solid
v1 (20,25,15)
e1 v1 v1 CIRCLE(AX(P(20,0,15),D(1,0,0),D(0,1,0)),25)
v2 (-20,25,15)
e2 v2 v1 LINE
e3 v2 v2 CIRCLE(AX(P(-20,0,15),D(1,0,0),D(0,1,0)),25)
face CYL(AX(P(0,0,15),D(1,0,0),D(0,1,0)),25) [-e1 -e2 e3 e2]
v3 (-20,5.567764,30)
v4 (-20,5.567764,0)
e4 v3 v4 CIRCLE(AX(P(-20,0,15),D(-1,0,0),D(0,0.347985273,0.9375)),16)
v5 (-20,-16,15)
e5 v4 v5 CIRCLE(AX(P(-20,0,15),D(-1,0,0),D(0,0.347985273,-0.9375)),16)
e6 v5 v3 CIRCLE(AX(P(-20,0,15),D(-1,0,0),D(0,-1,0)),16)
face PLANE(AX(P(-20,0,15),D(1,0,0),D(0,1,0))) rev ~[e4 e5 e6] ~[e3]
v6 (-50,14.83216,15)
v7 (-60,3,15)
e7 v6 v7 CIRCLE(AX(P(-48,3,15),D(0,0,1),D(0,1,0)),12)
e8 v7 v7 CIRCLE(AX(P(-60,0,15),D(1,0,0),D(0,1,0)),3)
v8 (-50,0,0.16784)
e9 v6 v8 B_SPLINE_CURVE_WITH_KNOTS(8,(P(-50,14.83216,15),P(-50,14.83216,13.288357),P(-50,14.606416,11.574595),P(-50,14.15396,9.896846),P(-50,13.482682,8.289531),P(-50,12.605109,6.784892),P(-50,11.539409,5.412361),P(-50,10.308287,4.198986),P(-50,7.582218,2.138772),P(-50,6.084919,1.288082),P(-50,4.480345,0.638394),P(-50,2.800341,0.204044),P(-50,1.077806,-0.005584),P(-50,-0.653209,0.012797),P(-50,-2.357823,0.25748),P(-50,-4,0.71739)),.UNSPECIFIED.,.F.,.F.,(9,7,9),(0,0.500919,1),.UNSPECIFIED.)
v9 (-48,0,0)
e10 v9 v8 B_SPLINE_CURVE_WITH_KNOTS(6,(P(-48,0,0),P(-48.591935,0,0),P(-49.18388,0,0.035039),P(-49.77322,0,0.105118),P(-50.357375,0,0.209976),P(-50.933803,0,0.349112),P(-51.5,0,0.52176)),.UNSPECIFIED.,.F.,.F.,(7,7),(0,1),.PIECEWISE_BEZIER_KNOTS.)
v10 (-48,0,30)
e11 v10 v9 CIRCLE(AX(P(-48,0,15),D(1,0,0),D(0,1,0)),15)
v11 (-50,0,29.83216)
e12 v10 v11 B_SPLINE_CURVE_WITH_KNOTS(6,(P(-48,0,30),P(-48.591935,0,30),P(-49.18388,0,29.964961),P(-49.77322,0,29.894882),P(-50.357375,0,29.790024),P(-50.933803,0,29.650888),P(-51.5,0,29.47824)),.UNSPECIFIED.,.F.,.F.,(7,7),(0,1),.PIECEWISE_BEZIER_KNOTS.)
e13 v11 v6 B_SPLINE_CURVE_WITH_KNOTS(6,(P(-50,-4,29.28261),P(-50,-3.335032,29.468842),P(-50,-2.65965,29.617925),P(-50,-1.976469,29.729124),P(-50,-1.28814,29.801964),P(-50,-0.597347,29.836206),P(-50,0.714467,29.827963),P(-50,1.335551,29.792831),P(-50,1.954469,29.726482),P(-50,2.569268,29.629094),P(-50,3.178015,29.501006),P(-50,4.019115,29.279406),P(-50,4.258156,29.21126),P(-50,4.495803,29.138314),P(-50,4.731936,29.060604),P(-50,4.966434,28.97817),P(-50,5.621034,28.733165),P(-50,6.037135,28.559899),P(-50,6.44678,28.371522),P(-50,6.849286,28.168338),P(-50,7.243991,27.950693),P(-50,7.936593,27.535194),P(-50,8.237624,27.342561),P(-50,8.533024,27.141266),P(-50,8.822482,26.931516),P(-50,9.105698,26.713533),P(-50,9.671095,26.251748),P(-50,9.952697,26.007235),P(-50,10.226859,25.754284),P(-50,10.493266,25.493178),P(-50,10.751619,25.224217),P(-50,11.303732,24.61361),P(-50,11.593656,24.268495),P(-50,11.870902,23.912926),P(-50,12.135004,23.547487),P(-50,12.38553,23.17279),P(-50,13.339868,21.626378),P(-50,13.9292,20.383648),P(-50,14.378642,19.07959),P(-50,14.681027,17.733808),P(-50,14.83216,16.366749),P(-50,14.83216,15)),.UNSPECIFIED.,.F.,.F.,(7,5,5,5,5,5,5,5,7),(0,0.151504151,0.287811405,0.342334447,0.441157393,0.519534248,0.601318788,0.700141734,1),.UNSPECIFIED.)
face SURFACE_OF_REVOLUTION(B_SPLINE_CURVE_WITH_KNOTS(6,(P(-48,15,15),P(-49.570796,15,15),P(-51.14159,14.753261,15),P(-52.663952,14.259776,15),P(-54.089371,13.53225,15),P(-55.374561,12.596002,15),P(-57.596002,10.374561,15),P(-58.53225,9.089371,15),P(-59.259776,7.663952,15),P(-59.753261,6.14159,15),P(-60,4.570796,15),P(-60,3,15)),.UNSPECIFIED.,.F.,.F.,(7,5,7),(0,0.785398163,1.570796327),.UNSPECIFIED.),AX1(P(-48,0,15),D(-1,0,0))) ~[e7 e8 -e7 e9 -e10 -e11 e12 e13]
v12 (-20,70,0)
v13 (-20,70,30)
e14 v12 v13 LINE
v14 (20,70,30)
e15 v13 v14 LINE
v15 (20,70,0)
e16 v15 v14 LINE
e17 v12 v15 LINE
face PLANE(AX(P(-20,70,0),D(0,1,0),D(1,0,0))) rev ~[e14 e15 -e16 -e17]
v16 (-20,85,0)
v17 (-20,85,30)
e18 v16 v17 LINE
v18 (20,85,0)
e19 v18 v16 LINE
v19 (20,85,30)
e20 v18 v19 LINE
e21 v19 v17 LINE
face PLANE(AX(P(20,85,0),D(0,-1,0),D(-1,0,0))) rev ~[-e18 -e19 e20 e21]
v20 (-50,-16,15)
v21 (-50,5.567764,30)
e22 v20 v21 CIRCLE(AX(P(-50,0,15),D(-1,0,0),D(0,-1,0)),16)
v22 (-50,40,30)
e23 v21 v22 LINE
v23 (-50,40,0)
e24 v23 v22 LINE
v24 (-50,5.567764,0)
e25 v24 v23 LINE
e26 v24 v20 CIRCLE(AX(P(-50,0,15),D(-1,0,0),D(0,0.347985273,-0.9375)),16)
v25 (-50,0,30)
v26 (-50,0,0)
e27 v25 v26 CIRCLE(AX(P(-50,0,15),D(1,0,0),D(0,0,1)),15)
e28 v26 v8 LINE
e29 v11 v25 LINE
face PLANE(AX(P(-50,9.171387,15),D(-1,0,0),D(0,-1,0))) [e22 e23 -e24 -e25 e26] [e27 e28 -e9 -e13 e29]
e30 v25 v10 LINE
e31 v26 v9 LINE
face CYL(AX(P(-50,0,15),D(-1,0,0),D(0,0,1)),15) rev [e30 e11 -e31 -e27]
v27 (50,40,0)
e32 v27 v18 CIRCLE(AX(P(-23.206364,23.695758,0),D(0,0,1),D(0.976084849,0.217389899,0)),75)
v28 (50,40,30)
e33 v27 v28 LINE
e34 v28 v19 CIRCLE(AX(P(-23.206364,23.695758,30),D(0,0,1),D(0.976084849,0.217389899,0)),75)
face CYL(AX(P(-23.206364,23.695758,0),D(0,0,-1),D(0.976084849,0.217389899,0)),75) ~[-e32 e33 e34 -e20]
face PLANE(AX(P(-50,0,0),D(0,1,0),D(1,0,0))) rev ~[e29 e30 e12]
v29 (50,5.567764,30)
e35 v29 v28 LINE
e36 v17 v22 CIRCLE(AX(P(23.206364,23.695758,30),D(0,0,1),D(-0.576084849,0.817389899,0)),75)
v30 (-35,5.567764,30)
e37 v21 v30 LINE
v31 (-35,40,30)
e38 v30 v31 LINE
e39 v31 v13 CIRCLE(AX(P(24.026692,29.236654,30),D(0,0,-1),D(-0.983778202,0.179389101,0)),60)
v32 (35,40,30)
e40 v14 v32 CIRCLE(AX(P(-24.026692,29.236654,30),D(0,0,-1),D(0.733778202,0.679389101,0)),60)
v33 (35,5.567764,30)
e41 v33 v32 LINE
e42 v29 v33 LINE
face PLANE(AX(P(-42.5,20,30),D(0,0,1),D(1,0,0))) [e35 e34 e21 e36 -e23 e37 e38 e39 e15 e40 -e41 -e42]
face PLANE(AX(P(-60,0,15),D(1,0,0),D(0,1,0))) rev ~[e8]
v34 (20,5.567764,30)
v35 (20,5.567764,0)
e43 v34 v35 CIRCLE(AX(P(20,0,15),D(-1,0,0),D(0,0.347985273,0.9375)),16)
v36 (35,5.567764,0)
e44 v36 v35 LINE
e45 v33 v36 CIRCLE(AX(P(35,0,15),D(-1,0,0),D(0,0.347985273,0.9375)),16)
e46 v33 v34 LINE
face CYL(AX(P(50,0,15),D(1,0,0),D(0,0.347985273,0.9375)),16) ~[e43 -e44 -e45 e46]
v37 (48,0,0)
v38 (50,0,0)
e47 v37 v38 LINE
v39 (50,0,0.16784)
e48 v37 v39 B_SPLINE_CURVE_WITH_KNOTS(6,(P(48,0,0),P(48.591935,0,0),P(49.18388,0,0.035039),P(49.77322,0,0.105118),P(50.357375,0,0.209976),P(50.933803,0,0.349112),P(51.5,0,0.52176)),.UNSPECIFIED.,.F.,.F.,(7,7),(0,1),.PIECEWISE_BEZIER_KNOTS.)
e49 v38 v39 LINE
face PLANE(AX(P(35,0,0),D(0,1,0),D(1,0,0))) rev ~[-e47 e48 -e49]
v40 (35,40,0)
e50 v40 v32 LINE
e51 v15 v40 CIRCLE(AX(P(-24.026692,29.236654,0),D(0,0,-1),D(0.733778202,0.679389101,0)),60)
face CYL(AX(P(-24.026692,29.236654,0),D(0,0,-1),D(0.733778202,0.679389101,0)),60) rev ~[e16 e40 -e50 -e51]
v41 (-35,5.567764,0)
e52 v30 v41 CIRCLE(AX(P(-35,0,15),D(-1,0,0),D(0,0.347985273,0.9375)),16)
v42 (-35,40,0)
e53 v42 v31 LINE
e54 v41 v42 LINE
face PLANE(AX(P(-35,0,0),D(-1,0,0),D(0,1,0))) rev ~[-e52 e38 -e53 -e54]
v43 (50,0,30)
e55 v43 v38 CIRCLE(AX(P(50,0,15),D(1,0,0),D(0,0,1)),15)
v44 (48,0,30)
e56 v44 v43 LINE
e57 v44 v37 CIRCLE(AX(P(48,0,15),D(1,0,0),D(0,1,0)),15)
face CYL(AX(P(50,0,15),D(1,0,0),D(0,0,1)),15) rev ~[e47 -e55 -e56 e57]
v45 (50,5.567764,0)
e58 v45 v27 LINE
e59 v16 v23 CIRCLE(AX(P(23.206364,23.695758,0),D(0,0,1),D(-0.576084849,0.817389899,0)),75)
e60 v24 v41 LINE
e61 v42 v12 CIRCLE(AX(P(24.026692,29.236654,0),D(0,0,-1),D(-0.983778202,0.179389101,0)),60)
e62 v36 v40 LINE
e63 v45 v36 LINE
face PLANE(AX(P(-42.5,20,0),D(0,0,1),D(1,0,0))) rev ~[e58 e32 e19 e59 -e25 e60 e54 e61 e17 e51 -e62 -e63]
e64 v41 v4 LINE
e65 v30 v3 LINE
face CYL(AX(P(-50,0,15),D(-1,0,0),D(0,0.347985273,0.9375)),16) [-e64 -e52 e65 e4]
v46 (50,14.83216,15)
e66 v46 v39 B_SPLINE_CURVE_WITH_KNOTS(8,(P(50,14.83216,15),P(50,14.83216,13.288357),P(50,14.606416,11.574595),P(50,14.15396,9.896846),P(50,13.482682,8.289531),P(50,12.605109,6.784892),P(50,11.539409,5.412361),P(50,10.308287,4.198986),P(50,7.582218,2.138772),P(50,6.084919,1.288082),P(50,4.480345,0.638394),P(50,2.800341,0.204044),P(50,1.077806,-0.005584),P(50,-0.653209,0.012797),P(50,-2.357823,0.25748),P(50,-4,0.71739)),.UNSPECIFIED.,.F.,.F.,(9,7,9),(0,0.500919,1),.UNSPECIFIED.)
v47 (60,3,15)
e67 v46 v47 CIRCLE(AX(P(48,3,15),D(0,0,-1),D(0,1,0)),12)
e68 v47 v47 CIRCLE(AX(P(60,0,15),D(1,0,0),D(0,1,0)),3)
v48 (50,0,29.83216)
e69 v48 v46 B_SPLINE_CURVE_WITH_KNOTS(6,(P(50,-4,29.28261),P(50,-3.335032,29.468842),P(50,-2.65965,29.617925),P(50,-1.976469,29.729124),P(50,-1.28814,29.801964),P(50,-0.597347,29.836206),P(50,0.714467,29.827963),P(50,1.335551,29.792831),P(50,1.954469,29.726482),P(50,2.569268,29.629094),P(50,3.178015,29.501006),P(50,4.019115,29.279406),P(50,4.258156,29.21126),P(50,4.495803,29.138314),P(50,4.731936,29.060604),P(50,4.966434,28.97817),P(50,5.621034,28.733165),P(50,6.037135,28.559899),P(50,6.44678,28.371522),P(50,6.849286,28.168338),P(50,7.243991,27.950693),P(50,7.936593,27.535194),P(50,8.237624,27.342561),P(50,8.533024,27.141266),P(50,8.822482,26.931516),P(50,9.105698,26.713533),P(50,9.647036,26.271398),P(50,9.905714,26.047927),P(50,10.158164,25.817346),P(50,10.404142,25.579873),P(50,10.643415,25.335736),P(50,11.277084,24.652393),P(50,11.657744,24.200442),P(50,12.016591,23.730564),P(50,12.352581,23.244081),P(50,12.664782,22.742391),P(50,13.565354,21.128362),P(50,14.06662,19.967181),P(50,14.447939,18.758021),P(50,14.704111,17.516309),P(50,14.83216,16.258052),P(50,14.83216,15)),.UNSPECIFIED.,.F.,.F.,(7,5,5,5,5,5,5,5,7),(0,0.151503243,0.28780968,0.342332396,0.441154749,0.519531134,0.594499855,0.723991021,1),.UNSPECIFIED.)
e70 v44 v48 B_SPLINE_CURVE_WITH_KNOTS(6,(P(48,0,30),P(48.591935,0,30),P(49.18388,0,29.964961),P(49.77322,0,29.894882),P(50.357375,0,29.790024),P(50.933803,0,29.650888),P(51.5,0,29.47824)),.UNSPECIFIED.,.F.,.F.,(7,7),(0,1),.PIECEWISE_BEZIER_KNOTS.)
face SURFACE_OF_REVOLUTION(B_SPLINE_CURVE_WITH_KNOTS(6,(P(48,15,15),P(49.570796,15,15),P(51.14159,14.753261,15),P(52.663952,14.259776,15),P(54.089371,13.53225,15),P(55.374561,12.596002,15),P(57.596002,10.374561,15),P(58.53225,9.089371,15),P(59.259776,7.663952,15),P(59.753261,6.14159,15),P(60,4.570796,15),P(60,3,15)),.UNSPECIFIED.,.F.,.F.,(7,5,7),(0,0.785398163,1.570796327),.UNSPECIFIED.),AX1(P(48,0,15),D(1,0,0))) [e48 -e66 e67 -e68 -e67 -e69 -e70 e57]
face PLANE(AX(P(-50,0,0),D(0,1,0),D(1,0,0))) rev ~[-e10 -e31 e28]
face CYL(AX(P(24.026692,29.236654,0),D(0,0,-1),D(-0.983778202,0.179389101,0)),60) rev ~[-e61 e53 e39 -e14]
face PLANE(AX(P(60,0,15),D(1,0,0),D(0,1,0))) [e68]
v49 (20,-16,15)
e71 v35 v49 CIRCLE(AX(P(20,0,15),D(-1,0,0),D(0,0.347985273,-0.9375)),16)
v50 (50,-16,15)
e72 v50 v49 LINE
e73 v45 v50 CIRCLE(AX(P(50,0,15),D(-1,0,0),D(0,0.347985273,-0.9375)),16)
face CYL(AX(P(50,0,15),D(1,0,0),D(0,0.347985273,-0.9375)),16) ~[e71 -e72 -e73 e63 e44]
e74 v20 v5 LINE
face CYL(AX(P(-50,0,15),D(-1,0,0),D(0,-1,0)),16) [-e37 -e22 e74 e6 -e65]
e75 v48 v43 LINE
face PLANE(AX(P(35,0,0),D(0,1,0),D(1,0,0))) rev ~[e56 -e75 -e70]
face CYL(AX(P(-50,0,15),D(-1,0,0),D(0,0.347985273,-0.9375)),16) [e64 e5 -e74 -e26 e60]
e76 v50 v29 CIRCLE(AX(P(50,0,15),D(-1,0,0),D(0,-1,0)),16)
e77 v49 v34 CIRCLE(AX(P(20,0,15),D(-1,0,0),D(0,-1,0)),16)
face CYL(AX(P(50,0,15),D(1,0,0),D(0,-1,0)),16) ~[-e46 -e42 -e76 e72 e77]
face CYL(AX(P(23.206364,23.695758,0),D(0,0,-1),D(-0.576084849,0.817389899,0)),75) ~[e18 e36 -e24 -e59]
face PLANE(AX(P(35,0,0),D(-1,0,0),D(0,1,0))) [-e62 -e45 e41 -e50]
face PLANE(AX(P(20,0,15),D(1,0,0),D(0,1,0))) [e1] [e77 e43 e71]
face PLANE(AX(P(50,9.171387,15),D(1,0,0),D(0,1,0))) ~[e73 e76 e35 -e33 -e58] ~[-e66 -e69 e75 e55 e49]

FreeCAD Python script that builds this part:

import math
import FreeCAD as App
import Part
import Sketcher


def edges_at(feature, points):
    """Names of the edges that pass closest to the given points."""
    edges = feature.Shape.Edges
    near = lambda p: min(range(len(edges)), key=lambda i: edges[i].distToShape(Part.Vertex(*p))[0])
    return sorted({f"Edge{near(p) + 1}" for p in points})

doc = App.newDocument("Part")
body = doc.addObject("PartDesign::Body", "Body")

# Sketch on XY plane
sketch1 = doc.addObject("Sketcher::SketchObject", "Sketch")
body.addObject(sketch1)
sketch1.AttachmentSupport = (doc.XY_Plane, [""])
sketch1.MapMode = "FlatFace"
sketch1.addGeometry([
    Part.LineSegment(App.Vector(-50, 40, 0), App.Vector(-50, 0, 0)),  # 0
    Part.LineSegment(App.Vector(-50, 0, 0), App.Vector(-35, 0, 0)),  # 1
    Part.LineSegment(App.Vector(-35, 0, 0), App.Vector(-35, 40, 0)),  # 2
    Part.ArcOfCircle(Part.Circle(App.Vector(24.026692, 29.236654, 0), App.Vector(0, 0, 1), 60), math.radians(137.204076), math.radians(169.665821)),  # 3
    Part.LineSegment(App.Vector(-20, 70, 0), App.Vector(20, 70, 0)),  # 4
    Part.ArcOfCircle(Part.Circle(App.Vector(-24.026692, 29.236654, 0), App.Vector(0, 0, 1), 60), math.radians(10.334179), math.radians(42.795924)),  # 5
    Part.LineSegment(App.Vector(35, 40, 0), App.Vector(35, 0, 0)),  # 6
    Part.LineSegment(App.Vector(35, 0, 0), App.Vector(50, 0, 0)),  # 7
    Part.LineSegment(App.Vector(50, 0, 0), App.Vector(50, 40, 0)),  # 8
    Part.ArcOfCircle(Part.Circle(App.Vector(-23.206364, 23.695758, 0), App.Vector(0, 0, 1), 75), math.radians(12.555775), math.radians(54.82436)),  # 9
    Part.LineSegment(App.Vector(20, 85, 0), App.Vector(-20, 85, 0)),  # 10
    Part.ArcOfCircle(Part.Circle(App.Vector(23.206364, 23.695758, 0), App.Vector(0, 0, 1), 75), math.radians(125.17564), math.radians(167.444225)),  # 11
], False)
sketch1.addConstraint([
    Sketcher.Constraint("Coincident", 0, 2, 1, 1),
    Sketcher.Constraint("Coincident", 1, 2, 2, 1),
    Sketcher.Constraint("Coincident", 2, 2, 3, 2),
    Sketcher.Constraint("Coincident", 3, 1, 4, 1),
    Sketcher.Constraint("Coincident", 4, 2, 5, 2),
    Sketcher.Constraint("Coincident", 5, 1, 6, 1),
    Sketcher.Constraint("Coincident", 6, 2, 7, 1),
    Sketcher.Constraint("Coincident", 7, 2, 8, 1),
    Sketcher.Constraint("Coincident", 8, 2, 9, 1),
    Sketcher.Constraint("Coincident", 9, 2, 10, 1),
    Sketcher.Constraint("Coincident", 10, 2, 11, 1),
    Sketcher.Constraint("Coincident", 11, 2, 0, 1),
    Sketcher.Constraint("Vertical", 0),
    Sketcher.Constraint("Horizontal", 1),
    Sketcher.Constraint("Vertical", 2),
    Sketcher.Constraint("Horizontal", 4),
    Sketcher.Constraint("Vertical", 6),
    Sketcher.Constraint("Horizontal", 7),
    Sketcher.Constraint("Vertical", 8),
    Sketcher.Constraint("Horizontal", 10),
    Sketcher.Constraint("Equal", 3, 5),
    Sketcher.Constraint("Equal", 9, 11),
    Sketcher.Constraint("Symmetric", 1, 2, 6, 2, -1, 1),
    Sketcher.Constraint("Symmetric", 3, 3, 5, 3, -2),
    Sketcher.Constraint("Symmetric", 9, 3, 11, 3, -2),
    Sketcher.Constraint("Symmetric", 0, 2, 7, 2, -2),
    Sketcher.Constraint("Horizontal", 5, 1, 8, 2),
    Sketcher.Constraint("Vertical", 4, 2, 9, 2),
    Sketcher.Constraint("Equal", 10, 0),
    Sketcher.Constraint("Radius", 3, 60.0),
    Sketcher.Constraint("Radius", 9, 75.0),
    Sketcher.Constraint("DistanceX", 1, 1, 1, 2, 15.0),
    Sketcher.Constraint("DistanceX", 4, 1, 4, 2, 40.0),
    Sketcher.Constraint("DistanceX", 0, 2, -1, 1, 50.0),
    Sketcher.Constraint("DistanceY", -1, 1, 3, 1, 70.0),
    Sketcher.Constraint("DistanceY", -1, 1, 9, 2, 85.0),
])
pad1 = doc.addObject("PartDesign::Pad", "Pad")
body.addObject(pad1)
pad1.Profile = sketch1
pad1.Length = 30
body2 = doc.addObject("PartDesign::Body", "Body001")

# Sketch on YZ plane
sketch2 = doc.addObject("Sketcher::SketchObject", "Sketch001")
body2.addObject(sketch2)
sketch2.AttachmentSupport = (doc.getObject("YZ_Plane001"), [""])
sketch2.MapMode = "FlatFace"
sketch2.addGeometry([
    Part.Circle(App.Vector(0, 15, 0), App.Vector(0, 0, 1), 25),
    Part.Circle(App.Vector(0, 15, 0), App.Vector(0, 0, 1), 15),
], False)
sketch2.addConstraint([
    Sketcher.Constraint("Coincident", 1, 3, 0, 3),
    Sketcher.Constraint("PointOnObject", 0, 3, -2),
    Sketcher.Constraint("Diameter", 0, 50.0),
    Sketcher.Constraint("Diameter", 1, 30.0),
    Sketcher.Constraint("DistanceY", -1, 1, 0, 3, 15.0),
])
pad2 = doc.addObject("PartDesign::Pad", "Pad001")
body2.addObject(pad2)
pad2.Profile = sketch2
pad2.Type = "TwoLengths"
pad2.Length = 20
pad2.Length2 = 20
body3 = doc.addObject("PartDesign::Body", "Body002")

# Sketch on YZ plane
sketch3 = doc.addObject("Sketcher::SketchObject", "Sketch002")
body3.addObject(sketch3)
sketch3.AttachmentSupport = (doc.getObject("YZ_Plane002"), [""])
sketch3.MapMode = "FlatFace"
sketch3.addGeometry(Part.Circle(App.Vector(0, 15, 0), App.Vector(0, 0, 1), 15), False)
sketch3.addConstraint([
    Sketcher.Constraint("PointOnObject", 0, 3, -2),
    Sketcher.Constraint("Diameter", 0, 30.0),
    Sketcher.Constraint("DistanceY", -1, 1, 0, 3, 15.0),
])
pad3 = doc.addObject("PartDesign::Pad", "Pad002")
body3.addObject(pad3)
pad3.Profile = sketch3
pad3.Type = "TwoLengths"
pad3.Length = 60
pad3.Length2 = 60
doc.recompute()

fillet = doc.addObject("PartDesign::Fillet", "Fillet")
body3.addObject(fillet)
fillet.Base = (pad3, edges_at(pad3, [(-60, -15, 15), (60, -15, 15)]))
fillet.Radius = 12
body.AllowCompound = True
doc.recompute()

boolean = doc.addObject("PartDesign::Boolean", "Boolean")
body.addObject(boolean)
boolean.Type = "Fuse"
boolean.addObjects([body2])
doc.recompute()

boolean2 = doc.addObject("PartDesign::Boolean", "Boolean001")
body.addObject(boolean2)
boolean2.Type = "Fuse"
boolean2.addObjects([body3])

# Sketch on YZ plane
sketch4 = doc.addObject("Sketcher::SketchObject", "Sketch003")
body.addObject(sketch4)
sketch4.AttachmentSupport = (doc.YZ_Plane, [""])
sketch4.MapMode = "FlatFace"
sketch4.AttachmentOffset = App.Placement(App.Vector(0, 0, -50), App.Rotation())
sketch4.addGeometry([
    Part.ArcOfCircle(Part.Circle(App.Vector(0, 15, 0), App.Vector(0, 0, 1), 16), math.radians(-69.635865), math.radians(69.635865)),
    Part.ArcOfCircle(Part.Circle(App.Vector(0, 15, 0), App.Vector(0, 0, 1), 16), math.radians(180), math.radians(290.364135)),
    Part.ArcOfCircle(Part.Circle(App.Vector(0, 15, 0), App.Vector(0, 0, 1), 16), math.radians(69.635865), math.radians(180)),
    Part.Circle(App.Vector(0, 15, 0), App.Vector(0, 0, 1), 15),
], False)
sketch4.addConstraint([
    Sketcher.Constraint("Tangent", 0, 1, 1, 2),
    Sketcher.Constraint("Tangent", 1, 1, 2, 2),
    Sketcher.Constraint("Tangent", 2, 1, 0, 2),
    Sketcher.Constraint("Coincident", 3, 3, 0, 3),
    Sketcher.Constraint("PointOnObject", 0, 3, -2),
    Sketcher.Constraint("PointOnObject", 0, 1, -1),
    Sketcher.Constraint("Horizontal", 3, 3, 1, 1),
    Sketcher.Constraint("Vertical", 0, 1, 2, 1),
    Sketcher.Constraint("Diameter", 3, 30.0),
    Sketcher.Constraint("Radius", 0, 16.0),
    Sketcher.Constraint("DistanceY", -1, 1, 0, 3, 15.0),
])
pad4 = doc.addObject("PartDesign::Pad", "Pad003")
body.addObject(pad4)
pad4.Profile = sketch4
pad4.Length = 30
body4 = doc.addObject("PartDesign::Body", "Body003")
doc.recompute()

body4.BaseFeature = body
doc.recompute()

mirroring = doc.addObject("Part::Mirroring", "Mirroring")
mirroring.Source = body
mirroring.Base = App.Vector(0, 0, 0)
mirroring.Normal = App.Vector(1, 0, 0)
body5 = doc.addObject("PartDesign::Body", "Body004")
body5.BaseFeature = mirroring
boolean3 = doc.addObject("PartDesign::Boolean", "Boolean002")
body4.addObject(boolean3)
boolean3.Type = "Fuse"
boolean3.addObjects([body5])
doc.recompute()
mirroring.Visibility = False

doc.recompute()
